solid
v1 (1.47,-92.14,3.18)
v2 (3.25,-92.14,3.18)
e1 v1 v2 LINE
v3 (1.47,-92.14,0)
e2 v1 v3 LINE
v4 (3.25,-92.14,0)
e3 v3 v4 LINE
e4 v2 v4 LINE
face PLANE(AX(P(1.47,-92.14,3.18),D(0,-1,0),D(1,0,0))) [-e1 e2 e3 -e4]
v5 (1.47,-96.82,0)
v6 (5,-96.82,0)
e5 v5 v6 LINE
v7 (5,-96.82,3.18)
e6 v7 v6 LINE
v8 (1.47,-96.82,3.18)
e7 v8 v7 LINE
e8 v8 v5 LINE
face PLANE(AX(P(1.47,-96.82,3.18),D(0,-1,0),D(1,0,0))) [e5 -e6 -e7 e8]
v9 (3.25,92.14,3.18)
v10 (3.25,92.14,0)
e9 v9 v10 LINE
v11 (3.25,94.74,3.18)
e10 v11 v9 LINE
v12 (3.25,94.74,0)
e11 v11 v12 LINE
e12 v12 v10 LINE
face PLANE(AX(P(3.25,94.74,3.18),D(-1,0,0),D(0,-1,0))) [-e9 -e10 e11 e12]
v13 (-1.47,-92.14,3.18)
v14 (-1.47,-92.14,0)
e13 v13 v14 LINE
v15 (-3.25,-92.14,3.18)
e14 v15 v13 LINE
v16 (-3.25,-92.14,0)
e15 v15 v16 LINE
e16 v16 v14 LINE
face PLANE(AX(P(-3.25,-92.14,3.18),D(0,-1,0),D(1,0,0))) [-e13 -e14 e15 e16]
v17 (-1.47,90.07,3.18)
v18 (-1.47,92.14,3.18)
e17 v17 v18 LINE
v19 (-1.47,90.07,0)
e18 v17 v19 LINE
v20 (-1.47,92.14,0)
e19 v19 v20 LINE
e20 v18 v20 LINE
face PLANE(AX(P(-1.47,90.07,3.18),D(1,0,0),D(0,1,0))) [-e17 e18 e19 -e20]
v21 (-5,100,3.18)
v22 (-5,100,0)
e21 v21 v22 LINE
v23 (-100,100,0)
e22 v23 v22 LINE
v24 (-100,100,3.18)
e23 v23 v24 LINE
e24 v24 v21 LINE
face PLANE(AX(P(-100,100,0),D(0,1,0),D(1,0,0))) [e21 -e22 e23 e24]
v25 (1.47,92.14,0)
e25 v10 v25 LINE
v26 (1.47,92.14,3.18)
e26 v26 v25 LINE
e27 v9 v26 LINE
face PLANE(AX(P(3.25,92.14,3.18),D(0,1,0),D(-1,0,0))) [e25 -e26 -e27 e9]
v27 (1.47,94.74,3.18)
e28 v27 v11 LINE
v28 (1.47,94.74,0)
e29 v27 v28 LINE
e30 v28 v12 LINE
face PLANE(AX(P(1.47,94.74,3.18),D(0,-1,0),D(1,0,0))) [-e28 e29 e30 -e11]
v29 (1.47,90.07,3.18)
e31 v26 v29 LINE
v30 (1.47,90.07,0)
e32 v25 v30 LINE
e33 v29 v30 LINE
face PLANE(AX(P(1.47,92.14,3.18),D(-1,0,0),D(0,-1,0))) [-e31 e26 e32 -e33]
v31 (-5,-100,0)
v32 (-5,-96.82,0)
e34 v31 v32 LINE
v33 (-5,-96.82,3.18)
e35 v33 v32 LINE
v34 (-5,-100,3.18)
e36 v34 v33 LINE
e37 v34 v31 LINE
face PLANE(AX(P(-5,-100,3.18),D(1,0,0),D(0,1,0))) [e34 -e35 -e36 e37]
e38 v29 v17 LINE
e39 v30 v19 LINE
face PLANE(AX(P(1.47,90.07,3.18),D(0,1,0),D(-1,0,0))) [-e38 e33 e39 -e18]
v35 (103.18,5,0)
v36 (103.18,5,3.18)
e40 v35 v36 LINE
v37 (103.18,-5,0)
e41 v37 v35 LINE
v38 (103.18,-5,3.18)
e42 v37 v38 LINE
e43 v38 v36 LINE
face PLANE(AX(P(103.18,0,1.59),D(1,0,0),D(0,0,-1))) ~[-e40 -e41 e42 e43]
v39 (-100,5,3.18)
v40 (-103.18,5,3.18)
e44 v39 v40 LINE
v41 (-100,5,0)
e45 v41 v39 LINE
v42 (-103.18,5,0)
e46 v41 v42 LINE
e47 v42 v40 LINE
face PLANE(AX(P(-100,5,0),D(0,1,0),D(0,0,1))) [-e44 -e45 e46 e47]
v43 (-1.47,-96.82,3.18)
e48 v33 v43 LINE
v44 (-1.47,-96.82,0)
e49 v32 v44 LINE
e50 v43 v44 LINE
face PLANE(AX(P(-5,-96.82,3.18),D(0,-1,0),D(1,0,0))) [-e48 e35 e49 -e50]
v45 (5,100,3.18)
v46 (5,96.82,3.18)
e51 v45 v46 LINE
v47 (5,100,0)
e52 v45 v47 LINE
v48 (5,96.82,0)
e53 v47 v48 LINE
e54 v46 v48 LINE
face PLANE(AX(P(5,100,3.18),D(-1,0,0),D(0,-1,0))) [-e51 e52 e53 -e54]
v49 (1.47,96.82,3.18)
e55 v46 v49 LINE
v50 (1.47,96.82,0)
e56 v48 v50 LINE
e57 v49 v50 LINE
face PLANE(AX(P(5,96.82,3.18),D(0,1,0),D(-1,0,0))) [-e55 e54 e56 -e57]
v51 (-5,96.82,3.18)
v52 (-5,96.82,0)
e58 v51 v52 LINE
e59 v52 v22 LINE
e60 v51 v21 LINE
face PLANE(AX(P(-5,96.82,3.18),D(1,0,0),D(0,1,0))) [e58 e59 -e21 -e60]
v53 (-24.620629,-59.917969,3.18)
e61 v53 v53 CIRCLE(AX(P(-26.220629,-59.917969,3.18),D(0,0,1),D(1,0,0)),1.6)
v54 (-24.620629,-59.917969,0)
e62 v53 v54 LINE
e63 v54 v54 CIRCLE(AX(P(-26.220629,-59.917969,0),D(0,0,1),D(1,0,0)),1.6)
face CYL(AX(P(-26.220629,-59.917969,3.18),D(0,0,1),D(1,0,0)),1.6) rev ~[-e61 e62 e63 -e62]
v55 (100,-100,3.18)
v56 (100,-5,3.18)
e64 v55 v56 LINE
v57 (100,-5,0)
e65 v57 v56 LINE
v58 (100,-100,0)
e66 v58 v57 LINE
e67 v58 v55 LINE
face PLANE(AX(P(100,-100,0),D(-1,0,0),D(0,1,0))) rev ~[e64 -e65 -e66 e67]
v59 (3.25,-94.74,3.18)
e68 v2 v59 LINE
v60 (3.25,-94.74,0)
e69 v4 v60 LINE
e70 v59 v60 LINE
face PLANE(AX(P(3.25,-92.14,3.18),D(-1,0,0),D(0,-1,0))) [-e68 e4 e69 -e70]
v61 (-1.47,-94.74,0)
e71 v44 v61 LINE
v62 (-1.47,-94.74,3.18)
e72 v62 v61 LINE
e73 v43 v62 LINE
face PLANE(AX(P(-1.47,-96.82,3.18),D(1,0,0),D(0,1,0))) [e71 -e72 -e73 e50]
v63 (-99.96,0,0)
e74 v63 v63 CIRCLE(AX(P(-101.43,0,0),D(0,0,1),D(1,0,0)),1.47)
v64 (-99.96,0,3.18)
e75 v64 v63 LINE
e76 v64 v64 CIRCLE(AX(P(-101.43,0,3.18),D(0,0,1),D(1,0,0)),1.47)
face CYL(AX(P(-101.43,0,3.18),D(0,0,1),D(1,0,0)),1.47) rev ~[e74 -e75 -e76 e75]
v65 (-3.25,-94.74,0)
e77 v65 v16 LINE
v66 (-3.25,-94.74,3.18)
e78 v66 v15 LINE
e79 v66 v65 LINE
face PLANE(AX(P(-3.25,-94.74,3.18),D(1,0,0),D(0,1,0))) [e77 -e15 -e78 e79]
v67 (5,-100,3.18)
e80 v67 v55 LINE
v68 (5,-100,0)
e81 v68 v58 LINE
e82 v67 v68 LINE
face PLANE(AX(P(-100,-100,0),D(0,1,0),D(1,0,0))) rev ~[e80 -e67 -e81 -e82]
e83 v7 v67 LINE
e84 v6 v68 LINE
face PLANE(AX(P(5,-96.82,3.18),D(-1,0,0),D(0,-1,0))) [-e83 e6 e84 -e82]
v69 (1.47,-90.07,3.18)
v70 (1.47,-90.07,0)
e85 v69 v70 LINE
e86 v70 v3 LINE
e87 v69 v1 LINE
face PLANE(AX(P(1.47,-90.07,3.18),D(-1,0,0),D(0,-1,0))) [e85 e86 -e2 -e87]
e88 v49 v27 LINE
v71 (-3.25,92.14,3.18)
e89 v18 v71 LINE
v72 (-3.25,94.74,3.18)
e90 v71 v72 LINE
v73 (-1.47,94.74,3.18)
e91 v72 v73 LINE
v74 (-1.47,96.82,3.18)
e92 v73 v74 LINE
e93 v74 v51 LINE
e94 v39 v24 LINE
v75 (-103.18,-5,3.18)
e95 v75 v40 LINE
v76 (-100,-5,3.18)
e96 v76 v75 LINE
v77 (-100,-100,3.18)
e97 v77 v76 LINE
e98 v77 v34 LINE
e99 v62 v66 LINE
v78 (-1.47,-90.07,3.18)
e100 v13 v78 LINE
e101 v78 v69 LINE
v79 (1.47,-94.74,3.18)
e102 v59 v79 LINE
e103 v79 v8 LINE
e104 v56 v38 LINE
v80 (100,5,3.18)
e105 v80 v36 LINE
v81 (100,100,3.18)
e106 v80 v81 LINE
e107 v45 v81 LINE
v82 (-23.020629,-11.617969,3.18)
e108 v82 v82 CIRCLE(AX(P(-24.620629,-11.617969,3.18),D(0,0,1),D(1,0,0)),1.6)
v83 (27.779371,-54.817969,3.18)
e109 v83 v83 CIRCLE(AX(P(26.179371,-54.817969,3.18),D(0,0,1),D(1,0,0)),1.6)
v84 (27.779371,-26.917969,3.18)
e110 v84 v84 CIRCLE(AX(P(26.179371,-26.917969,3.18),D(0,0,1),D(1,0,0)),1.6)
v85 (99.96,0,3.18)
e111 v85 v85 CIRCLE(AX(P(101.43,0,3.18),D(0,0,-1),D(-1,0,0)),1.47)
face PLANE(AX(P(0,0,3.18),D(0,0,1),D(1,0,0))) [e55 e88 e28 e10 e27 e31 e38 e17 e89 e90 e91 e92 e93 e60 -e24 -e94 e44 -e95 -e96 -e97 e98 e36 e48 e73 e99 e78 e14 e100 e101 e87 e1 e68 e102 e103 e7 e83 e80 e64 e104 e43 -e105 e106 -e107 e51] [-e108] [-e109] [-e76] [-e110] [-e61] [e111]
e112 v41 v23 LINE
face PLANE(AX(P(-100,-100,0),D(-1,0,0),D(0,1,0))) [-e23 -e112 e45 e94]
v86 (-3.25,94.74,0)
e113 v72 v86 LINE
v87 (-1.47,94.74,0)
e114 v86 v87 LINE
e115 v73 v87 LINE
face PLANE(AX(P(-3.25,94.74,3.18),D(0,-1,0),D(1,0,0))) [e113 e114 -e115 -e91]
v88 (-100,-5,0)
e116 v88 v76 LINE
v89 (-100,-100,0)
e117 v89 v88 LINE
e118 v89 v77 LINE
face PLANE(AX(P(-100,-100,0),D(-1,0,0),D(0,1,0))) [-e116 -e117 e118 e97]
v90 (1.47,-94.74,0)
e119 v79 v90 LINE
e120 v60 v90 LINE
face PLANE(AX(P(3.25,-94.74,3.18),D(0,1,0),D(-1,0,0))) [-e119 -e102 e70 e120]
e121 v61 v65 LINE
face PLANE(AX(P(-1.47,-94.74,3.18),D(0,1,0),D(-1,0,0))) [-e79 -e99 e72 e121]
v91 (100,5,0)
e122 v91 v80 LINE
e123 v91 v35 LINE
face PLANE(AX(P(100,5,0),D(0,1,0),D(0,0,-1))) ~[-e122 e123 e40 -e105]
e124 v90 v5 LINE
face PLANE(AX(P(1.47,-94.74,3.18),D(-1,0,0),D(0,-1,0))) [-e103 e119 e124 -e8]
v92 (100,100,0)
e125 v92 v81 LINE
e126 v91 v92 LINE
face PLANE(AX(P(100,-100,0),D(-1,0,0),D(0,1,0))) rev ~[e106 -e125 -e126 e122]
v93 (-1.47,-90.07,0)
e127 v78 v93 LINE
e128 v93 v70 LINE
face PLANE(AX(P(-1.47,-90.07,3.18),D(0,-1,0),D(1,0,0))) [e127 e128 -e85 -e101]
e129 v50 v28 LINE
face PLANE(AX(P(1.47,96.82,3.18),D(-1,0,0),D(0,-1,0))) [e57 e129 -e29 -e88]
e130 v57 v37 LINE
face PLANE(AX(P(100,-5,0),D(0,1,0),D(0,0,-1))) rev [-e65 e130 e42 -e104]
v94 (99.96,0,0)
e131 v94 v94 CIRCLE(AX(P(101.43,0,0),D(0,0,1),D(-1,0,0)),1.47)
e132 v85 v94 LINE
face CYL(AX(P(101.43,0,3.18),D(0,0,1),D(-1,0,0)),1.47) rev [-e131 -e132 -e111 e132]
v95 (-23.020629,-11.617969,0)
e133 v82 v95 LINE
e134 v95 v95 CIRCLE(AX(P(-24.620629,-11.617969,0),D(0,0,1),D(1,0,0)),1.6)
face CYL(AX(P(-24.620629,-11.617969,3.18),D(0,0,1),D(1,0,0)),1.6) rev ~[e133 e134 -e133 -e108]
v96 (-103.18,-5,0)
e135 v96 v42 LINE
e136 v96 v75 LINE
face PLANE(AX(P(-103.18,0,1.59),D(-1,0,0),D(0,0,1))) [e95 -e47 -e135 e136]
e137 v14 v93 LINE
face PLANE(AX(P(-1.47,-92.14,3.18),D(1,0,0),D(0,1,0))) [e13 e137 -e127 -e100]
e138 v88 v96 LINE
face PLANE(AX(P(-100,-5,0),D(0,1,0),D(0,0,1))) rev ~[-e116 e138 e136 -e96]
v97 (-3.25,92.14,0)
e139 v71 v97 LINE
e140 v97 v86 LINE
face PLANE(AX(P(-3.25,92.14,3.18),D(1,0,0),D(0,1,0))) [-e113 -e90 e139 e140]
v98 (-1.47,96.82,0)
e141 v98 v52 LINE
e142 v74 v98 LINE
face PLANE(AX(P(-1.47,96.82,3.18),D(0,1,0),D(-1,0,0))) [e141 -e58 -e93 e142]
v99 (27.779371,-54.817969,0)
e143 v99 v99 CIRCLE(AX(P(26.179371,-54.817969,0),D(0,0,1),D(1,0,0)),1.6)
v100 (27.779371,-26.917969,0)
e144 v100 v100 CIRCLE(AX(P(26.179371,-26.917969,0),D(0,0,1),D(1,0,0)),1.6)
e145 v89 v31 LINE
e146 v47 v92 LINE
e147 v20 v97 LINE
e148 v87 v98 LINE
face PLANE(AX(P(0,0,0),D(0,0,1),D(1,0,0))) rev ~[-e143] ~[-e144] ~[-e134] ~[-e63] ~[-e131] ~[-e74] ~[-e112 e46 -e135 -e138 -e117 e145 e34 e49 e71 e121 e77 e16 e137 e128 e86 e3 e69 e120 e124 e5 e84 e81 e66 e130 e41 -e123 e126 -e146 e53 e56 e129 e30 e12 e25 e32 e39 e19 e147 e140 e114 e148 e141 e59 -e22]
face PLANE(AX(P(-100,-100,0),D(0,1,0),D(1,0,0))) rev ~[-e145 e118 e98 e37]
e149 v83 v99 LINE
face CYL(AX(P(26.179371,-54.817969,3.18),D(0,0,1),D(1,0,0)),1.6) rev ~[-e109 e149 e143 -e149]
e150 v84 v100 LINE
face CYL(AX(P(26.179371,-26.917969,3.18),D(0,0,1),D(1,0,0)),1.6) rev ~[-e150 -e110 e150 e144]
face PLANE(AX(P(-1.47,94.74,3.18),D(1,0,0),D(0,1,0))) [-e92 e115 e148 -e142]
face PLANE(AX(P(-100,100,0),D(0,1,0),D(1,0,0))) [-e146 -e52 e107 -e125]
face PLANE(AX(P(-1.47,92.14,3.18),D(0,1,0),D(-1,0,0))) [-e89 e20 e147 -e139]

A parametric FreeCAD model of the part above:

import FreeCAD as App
import Part
import Sketcher
Q = App.Units.Quantity

doc = App.newDocument("Part")
body = doc.addObject("PartDesign::Body", "Body")

# Sketch on XY plane
sketch1 = body.newObject("Sketcher::SketchObject", "Sketch")
sketch1.AttachmentSupport = (doc.getObject("XY_Plane"), [""])
sketch1.MapMode = "FlatFace"
sketch1.addGeometry([
    Part.LineSegment(App.Vector(-100, 100, 0), App.Vector(-100, -100, 0)),
    Part.LineSegment(App.Vector(-100, -100, 0), App.Vector(100, -100, 0)),
    Part.LineSegment(App.Vector(100, -100, 0), App.Vector(100, 100, 0)),
    Part.LineSegment(App.Vector(100, 100, 0), App.Vector(-100, 100, 0)),
], False)
sketch1.addConstraint([
    Sketcher.Constraint("Coincident", 0, 2, 1, 1),
    Sketcher.Constraint("Coincident", 1, 2, 2, 1),
    Sketcher.Constraint("Coincident", 2, 2, 3, 1),
    Sketcher.Constraint("Coincident", 3, 2, 0, 1),
    Sketcher.Constraint("Vertical", 0),
    Sketcher.Constraint("Horizontal", 1),
    Sketcher.Constraint("Vertical", 2),
    Sketcher.Constraint("Horizontal", 3),
    Sketcher.Constraint("Symmetric", 0, 2, 2, 2, -1, 1),
    Sketcher.Constraint("Equal", 3, 0),
    Sketcher.Constraint("DistanceX", 1, 1, 1, 2, Q("200 mm")),
])
pad1 = body.newObject("PartDesign::Pad", "Pad")
pad1.Profile = sketch1
pad1.Length = 3.18

# Sketch on XY plane
sketch2 = body.newObject("Sketcher::SketchObject", "Sketch001")
sketch2.AttachmentSupport = (doc.getObject("XY_Plane"), [""])
sketch2.MapMode = "FlatFace"
sketch2.AttachmentOffset = App.Placement(App.Vector(0, 0, 3.18), App.Rotation())
sketch2.addGeometry([
    Part.LineSegment(App.Vector(5, 100, 0), App.Vector(-5, 100, 0)),  # 0
    Part.LineSegment(App.Vector(-5, 100, 0), App.Vector(-5, 96.82, 0)),  # 1
    Part.LineSegment(App.Vector(-5, 96.82, 0), App.Vector(-1.47, 96.82, 0)),  # 2
    Part.LineSegment(App.Vector(-1.47, 96.82, 0), App.Vector(-1.47, 94.74, 0)),  # 3
    Part.LineSegment(App.Vector(-1.47, 94.74, 0), App.Vector(-3.25, 94.74, 0)),  # 4
    Part.LineSegment(App.Vector(-3.25, 94.74, 0), App.Vector(-3.25, 92.14, 0)),  # 5
    Part.LineSegment(App.Vector(-3.25, 92.14, 0), App.Vector(-1.47, 92.14, 0)),  # 6
    Part.LineSegment(App.Vector(-1.47, 92.14, 0), App.Vector(-1.47, 90.07, 0)),  # 7
    Part.LineSegment(App.Vector(-1.47, 90.07, 0), App.Vector(1.47, 90.07, 0)),  # 8
    Part.LineSegment(App.Vector(1.47, 90.07, 0), App.Vector(1.47, 92.14, 0)),  # 9
    Part.LineSegment(App.Vector(1.47, 92.14, 0), App.Vector(3.25, 92.14, 0)),  # 10
    Part.LineSegment(App.Vector(3.25, 92.14, 0), App.Vector(3.25, 94.74, 0)),  # 11
    Part.LineSegment(App.Vector(3.25, 94.74, 0), App.Vector(1.47, 94.74, 0)),  # 12
    Part.LineSegment(App.Vector(1.47, 94.74, 0), App.Vector(1.47, 96.82, 0)),  # 13
    Part.LineSegment(App.Vector(1.47, 96.82, 0), App.Vector(5, 96.82, 0)),  # 14
    Part.LineSegment(App.Vector(5, 96.82, 0), App.Vector(5, 100, 0)),  # 15
    Part.LineSegment(App.Vector(5, -96.82, 0), App.Vector(1.47, -96.82, 0)),  # 16
    Part.LineSegment(App.Vector(1.47, -96.82, 0), App.Vector(1.47, -94.74, 0)),  # 17
    Part.LineSegment(App.Vector(1.47, -94.74, 0), App.Vector(3.25, -94.74, 0)),  # 18
    Part.LineSegment(App.Vector(3.25, -94.74, 0), App.Vector(3.25, -92.14, 0)),  # 19
    Part.LineSegment(App.Vector(3.25, -92.14, 0), App.Vector(1.47, -92.14, 0)),  # 20
    Part.LineSegment(App.Vector(1.47, -92.14, 0), App.Vector(1.47, -90.07, 0)),  # 21
    Part.LineSegment(App.Vector(1.47, -90.07, 0), App.Vector(-1.47, -90.07, 0)),  # 22
    Part.LineSegment(App.Vector(-1.47, -90.07, 0), App.Vector(-1.47, -92.14, 0)),  # 23
    Part.LineSegment(App.Vector(-1.47, -92.14, 0), App.Vector(-3.25, -92.14, 0)),  # 24
    Part.LineSegment(App.Vector(-3.25, -92.14, 0), App.Vector(-3.25, -94.74, 0)),  # 25
    Part.LineSegment(App.Vector(-3.25, -94.74, 0), App.Vector(-1.47, -94.74, 0)),  # 26
    Part.LineSegment(App.Vector(-1.47, -94.74, 0), App.Vector(-1.47, -96.82, 0)),  # 27
    Part.LineSegment(App.Vector(-1.47, -96.82, 0), App.Vector(-5, -96.82, 0)),  # 28
    Part.LineSegment(App.Vector(-5, -96.82, 0), App.Vector(-5, -100, 0)),  # 29
    Part.LineSegment(App.Vector(-5, -100, 0), App.Vector(5, -100, 0)),  # 30
    Part.LineSegment(App.Vector(5, -100, 0), App.Vector(5, -96.82, 0)),  # 31
], False)
sketch2.addConstraint([
    Sketcher.Constraint("Coincident", 0, 2, 1, 1),
    Sketcher.Constraint("Coincident", 1, 2, 2, 1),
    Sketcher.Constraint("Coincident", 2, 2, 3, 1),
    Sketcher.Constraint("Coincident", 3, 2, 4, 1),
    Sketcher.Constraint("Coincident", 4, 2, 5, 1),
    Sketcher.Constraint("Coincident", 5, 2, 6, 1),
    Sketcher.Constraint("Coincident", 6, 2, 7, 1),
    Sketcher.Constraint("Coincident", 7, 2, 8, 1),
    Sketcher.Constraint("Coincident", 8, 2, 9, 1),
    Sketcher.Constraint("Coincident", 9, 2, 10, 1),
    Sketcher.Constraint("Coincident", 10, 2, 11, 1),
    Sketcher.Constraint("Coincident", 11, 2, 12, 1),
    Sketcher.Constraint("Coincident", 12, 2, 13, 1),
    Sketcher.Constraint("Coincident", 13, 2, 14, 1),
    Sketcher.Constraint("Coincident", 14, 2, 15, 1),
    Sketcher.Constraint("Coincident", 15, 2, 0, 1),
    Sketcher.Constraint("Coincident", 16, 2, 17, 1),
    Sketcher.Constraint("Coincident", 17, 2, 18, 1),
    Sketcher.Constraint("Coincident", 18, 2, 19, 1),
    Sketcher.Constraint("Coincident", 19, 2, 20, 1),
    Sketcher.Constraint("Coincident", 20, 2, 21, 1),
    Sketcher.Constraint("Coincident", 21, 2, 22, 1),
    Sketcher.Constraint("Coincident", 22, 2, 23, 1),
    Sketcher.Constraint("Coincident", 23, 2, 24, 1),
    Sketcher.Constraint("Coincident", 24, 2, 25, 1),
    Sketcher.Constraint("Coincident", 25, 2, 26, 1),
    Sketcher.Constraint("Coincident", 26, 2, 27, 1),
    Sketcher.Constraint("Coincident", 27, 2, 28, 1),
    Sketcher.Constraint("Coincident", 28, 2, 29, 1),
    Sketcher.Constraint("Coincident", 29, 2, 30, 1),
    Sketcher.Constraint("Coincident", 30, 2, 31, 1),
    Sketcher.Constraint("Coincident", 31, 2, 16, 1),
    Sketcher.Constraint("Horizontal", 0),
    Sketcher.Constraint("Vertical", 1),
    Sketcher.Constraint("Horizontal", 2),
    Sketcher.Constraint("Vertical", 3),
    Sketcher.Constraint("Horizontal", 4),
    Sketcher.Constraint("Vertical", 5),
    Sketcher.Constraint("Horizontal", 6),
    Sketcher.Constraint("Vertical", 7),
    Sketcher.Constraint("Horizontal", 8),
    Sketcher.Constraint("Vertical", 9),
    Sketcher.Constraint("Horizontal", 10),
    Sketcher.Constraint("Vertical", 11),
    Sketcher.Constraint("Horizontal", 12),
    Sketcher.Constraint("Vertical", 13),
    Sketcher.Constraint("Horizontal", 14),
    Sketcher.Constraint("Vertical", 15),
    Sketcher.Constraint("Horizontal", 16),
    Sketcher.Constraint("Vertical", 17),
    Sketcher.Constraint("Horizontal", 18),
    Sketcher.Constraint("Vertical", 19),
    Sketcher.Constraint("Horizontal", 20),
    Sketcher.Constraint("Vertical", 21),
    Sketcher.Constraint("Horizontal", 22),
    Sketcher.Constraint("Vertical", 23),
    Sketcher.Constraint("Horizontal", 24),
    Sketcher.Constraint("Vertical", 25),
    Sketcher.Constraint("Horizontal", 26),
    Sketcher.Constraint("Vertical", 27),
    Sketcher.Constraint("Horizontal", 28),
    Sketcher.Constraint("Vertical", 29),
    Sketcher.Constraint("Horizontal", 30),
    Sketcher.Constraint("Vertical", 31),
    Sketcher.Constraint("Symmetric", 2, 2, 16, 2, -1, 1),
    Sketcher.Constraint("Symmetric", 4, 2, 18, 2, -1, 1),
    Sketcher.Constraint("Symmetric", 6, 2, 20, 2, -1, 1),
    Sketcher.Constraint("Symmetric", 8, 2, 22, 2, -1, 1),
    Sketcher.Constraint("Symmetric", 10, 2, 24, 2, -1, 1),
    Sketcher.Constraint("Symmetric", 12, 2, 26, 2, -1, 1),
    Sketcher.Constraint("Symmetric", 14, 2, 28, 2, -1, 1),
    Sketcher.Constraint("Symmetric", 0, 2, 30, 2, -1, 1),
    Sketcher.Constraint("Symmetric", 6, 2, 9, 2, -2),
    Sketcher.Constraint("Symmetric", 4, 2, 11, 2, -2),
    Sketcher.Constraint("Symmetric", 2, 2, 13, 2, -2),
    Sketcher.Constraint("Vertical", 3, 2, 6, 2),
    Sketcher.Constraint("Vertical", 1, 2, 28, 2),
    Sketcher.Constraint("DistanceX", 0, 2, 0, 1, Q("10 mm")),
    Sketcher.Constraint("DistanceY", 5, 2, 5, 1, Q("2.6 mm")),
    Sketcher.Constraint("DistanceY", -1, 1, 0, 2, Q("100 mm")),
    Sketcher.Constraint("DistanceX", 2, 1, 2, 2, Q("3.53 mm")),
    Sketcher.Constraint("DistanceX", 4, 2, 4, 1, Q("1.78 mm")),
    Sketcher.Constraint("DistanceY", 1, 2, 1, 1, Q("3.18 mm")),
    Sketcher.Constraint("DistanceY", 3, 2, 3, 1, Q("2.08 mm")),
    Sketcher.Constraint("DistanceY", 7, 2, 7, 1, Q("2.07 mm")),
])
pocket1 = body.newObject("PartDesign::Pocket", "Pocket")
pocket1.Profile = sketch2
pocket1.Type = "ThroughAll"

# Sketch on YZ plane
sketch3 = body.newObject("Sketcher::SketchObject", "Sketch002")
sketch3.AttachmentSupport = (doc.getObject("YZ_Plane"), [""])
sketch3.MapMode = "FlatFace"
sketch3.AttachmentOffset = App.Placement(App.Vector(0, 0, -100), App.Rotation())
sketch3.addGeometry([
    Part.LineSegment(App.Vector(5, 0, 0), App.Vector(-5, 0, 0)),
    Part.LineSegment(App.Vector(-5, 0, 0), App.Vector(-5, 3.18, 0)),
    Part.LineSegment(App.Vector(-5, 3.18, 0), App.Vector(5, 3.18, 0)),
    Part.LineSegment(App.Vector(5, 3.18, 0), App.Vector(5, 0, 0)),
], False)
sketch3.addConstraint([
    Sketcher.Constraint("Coincident", 0, 2, 1, 1),
    Sketcher.Constraint("Coincident", 1, 2, 2, 1),
    Sketcher.Constraint("Coincident", 2, 2, 3, 1),
    Sketcher.Constraint("Coincident", 3, 2, 0, 1),
    Sketcher.Constraint("Horizontal", 0),
    Sketcher.Constraint("Vertical", 1),
    Sketcher.Constraint("Horizontal", 2),
    Sketcher.Constraint("Vertical", 3),
    Sketcher.Constraint("Symmetric", 0, 2, 3, 2, -1, 1),
    Sketcher.Constraint("DistanceX", 0, 2, 0, 1, Q("10 mm")),
    Sketcher.Constraint("DistanceY", 1, 1, 1, 2, Q("3.18 mm")),
])
pad2 = body.newObject("PartDesign::Pad", "Pad001")
pad2.Profile = sketch3
pad2.Length = 3.18
pad2.Reversed = True

# Sketch on XY plane
sketch4 = body.newObject("Sketcher::SketchObject", "Sketch003")
sketch4.AttachmentSupport = (doc.getObject("XY_Plane"), [""])
sketch4.MapMode = "FlatFace"
sketch4.AttachmentOffset = App.Placement(App.Vector(0, 0, 3.18), App.Rotation())
sketch4.addGeometry(Part.Circle(App.Vector(-101.43, 0, 0), App.Vector(0, 0, 1), 1.47), False)
sketch4.addConstraint([
    Sketcher.Constraint("PointOnObject", 0, 3, -1),
    Sketcher.Constraint("Diameter", 0, Q("2.94 mm")),
    Sketcher.Constraint("DistanceX", 0, 3, -1, 1, Q("101.43 mm")),
])
pocket2 = body.newObject("PartDesign::Pocket", "Pocket001")
pocket2.Profile = sketch4
pocket2.Type = "ThroughAll"
doc.recompute()

mirrored = body.newObject("PartDesign::Mirrored", "Mirrored")
mirrored.Originals = [pad2]
mirrored.MirrorPlane = (doc.getObject("YZ_Plane"), [""])
body.Tip = mirrored
doc.recompute()

mirrored2 = body.newObject("PartDesign::Mirrored", "Mirrored001")
mirrored2.Originals = [pocket2]
mirrored2.MirrorPlane = (doc.getObject("YZ_Plane"), [""])
body.Tip = mirrored2

# Sketch on XY plane
sketch5 = body.newObject("Sketcher::SketchObject", "Sketch004")
sketch5.AttachmentSupport = (doc.getObject("XY_Plane"), [""])
sketch5.MapMode = "FlatFace"
sketch5.AttachmentOffset = App.Placement(App.Vector(0, 0, 3.18), App.Rotation())
sketch5.addGeometry([
    Part.Circle(App.Vector(26.179371, -54.817969, 0), App.Vector(0, 0, 1), 1.6),
    Part.Circle(App.Vector(26.179371, -26.917969, 0), App.Vector(0, 0, 1), 1.6),
    Part.Circle(App.Vector(-24.620629, -11.617969, 0), App.Vector(0, 0, 1), 1.6),
    Part.Circle(App.Vector(-26.220629, -59.917969, 0), App.Vector(0, 0, 1), 1.6),
], False)
sketch5.addConstraint([
    Sketcher.Constraint("Equal", 0, 1),
    Sketcher.Constraint("Equal", 1, 2),
    Sketcher.Constraint("Equal", 2, 3),
    Sketcher.Constraint("Vertical", 0, 3, 1, 3),
    Sketcher.Constraint("Diameter", 0, Q("3.2 mm")),
    Sketcher.Constraint("DistanceY", 3, 3, 1, 3, Q("33 mm")),
    Sketcher.Constraint("DistanceY", 0, 3, 1, 3, Q("27.9 mm")),
    Sketcher.Constraint("DistanceX", 2, 3, 1, 3, Q("50.8 mm")),
    Sketcher.Constraint("DistanceY", 1, 3, 2, 3, Q("15.3 mm")),
    Sketcher.Constraint("DistanceX", 3, 3, 2, 3, Q("1.6 mm")),
    Sketcher.Constraint("DistanceX", -1, 1, 0, 3, Q("26.179371 mm")),
    Sketcher.Constraint("DistanceY", 0, 3, -1, 1, Q("54.817969 mm")),
])
pocket3 = body.newObject("PartDesign::Pocket", "Pocket002")
pocket3.Profile = sketch5
pocket3.Type = "ThroughAll"

doc.recompute()
